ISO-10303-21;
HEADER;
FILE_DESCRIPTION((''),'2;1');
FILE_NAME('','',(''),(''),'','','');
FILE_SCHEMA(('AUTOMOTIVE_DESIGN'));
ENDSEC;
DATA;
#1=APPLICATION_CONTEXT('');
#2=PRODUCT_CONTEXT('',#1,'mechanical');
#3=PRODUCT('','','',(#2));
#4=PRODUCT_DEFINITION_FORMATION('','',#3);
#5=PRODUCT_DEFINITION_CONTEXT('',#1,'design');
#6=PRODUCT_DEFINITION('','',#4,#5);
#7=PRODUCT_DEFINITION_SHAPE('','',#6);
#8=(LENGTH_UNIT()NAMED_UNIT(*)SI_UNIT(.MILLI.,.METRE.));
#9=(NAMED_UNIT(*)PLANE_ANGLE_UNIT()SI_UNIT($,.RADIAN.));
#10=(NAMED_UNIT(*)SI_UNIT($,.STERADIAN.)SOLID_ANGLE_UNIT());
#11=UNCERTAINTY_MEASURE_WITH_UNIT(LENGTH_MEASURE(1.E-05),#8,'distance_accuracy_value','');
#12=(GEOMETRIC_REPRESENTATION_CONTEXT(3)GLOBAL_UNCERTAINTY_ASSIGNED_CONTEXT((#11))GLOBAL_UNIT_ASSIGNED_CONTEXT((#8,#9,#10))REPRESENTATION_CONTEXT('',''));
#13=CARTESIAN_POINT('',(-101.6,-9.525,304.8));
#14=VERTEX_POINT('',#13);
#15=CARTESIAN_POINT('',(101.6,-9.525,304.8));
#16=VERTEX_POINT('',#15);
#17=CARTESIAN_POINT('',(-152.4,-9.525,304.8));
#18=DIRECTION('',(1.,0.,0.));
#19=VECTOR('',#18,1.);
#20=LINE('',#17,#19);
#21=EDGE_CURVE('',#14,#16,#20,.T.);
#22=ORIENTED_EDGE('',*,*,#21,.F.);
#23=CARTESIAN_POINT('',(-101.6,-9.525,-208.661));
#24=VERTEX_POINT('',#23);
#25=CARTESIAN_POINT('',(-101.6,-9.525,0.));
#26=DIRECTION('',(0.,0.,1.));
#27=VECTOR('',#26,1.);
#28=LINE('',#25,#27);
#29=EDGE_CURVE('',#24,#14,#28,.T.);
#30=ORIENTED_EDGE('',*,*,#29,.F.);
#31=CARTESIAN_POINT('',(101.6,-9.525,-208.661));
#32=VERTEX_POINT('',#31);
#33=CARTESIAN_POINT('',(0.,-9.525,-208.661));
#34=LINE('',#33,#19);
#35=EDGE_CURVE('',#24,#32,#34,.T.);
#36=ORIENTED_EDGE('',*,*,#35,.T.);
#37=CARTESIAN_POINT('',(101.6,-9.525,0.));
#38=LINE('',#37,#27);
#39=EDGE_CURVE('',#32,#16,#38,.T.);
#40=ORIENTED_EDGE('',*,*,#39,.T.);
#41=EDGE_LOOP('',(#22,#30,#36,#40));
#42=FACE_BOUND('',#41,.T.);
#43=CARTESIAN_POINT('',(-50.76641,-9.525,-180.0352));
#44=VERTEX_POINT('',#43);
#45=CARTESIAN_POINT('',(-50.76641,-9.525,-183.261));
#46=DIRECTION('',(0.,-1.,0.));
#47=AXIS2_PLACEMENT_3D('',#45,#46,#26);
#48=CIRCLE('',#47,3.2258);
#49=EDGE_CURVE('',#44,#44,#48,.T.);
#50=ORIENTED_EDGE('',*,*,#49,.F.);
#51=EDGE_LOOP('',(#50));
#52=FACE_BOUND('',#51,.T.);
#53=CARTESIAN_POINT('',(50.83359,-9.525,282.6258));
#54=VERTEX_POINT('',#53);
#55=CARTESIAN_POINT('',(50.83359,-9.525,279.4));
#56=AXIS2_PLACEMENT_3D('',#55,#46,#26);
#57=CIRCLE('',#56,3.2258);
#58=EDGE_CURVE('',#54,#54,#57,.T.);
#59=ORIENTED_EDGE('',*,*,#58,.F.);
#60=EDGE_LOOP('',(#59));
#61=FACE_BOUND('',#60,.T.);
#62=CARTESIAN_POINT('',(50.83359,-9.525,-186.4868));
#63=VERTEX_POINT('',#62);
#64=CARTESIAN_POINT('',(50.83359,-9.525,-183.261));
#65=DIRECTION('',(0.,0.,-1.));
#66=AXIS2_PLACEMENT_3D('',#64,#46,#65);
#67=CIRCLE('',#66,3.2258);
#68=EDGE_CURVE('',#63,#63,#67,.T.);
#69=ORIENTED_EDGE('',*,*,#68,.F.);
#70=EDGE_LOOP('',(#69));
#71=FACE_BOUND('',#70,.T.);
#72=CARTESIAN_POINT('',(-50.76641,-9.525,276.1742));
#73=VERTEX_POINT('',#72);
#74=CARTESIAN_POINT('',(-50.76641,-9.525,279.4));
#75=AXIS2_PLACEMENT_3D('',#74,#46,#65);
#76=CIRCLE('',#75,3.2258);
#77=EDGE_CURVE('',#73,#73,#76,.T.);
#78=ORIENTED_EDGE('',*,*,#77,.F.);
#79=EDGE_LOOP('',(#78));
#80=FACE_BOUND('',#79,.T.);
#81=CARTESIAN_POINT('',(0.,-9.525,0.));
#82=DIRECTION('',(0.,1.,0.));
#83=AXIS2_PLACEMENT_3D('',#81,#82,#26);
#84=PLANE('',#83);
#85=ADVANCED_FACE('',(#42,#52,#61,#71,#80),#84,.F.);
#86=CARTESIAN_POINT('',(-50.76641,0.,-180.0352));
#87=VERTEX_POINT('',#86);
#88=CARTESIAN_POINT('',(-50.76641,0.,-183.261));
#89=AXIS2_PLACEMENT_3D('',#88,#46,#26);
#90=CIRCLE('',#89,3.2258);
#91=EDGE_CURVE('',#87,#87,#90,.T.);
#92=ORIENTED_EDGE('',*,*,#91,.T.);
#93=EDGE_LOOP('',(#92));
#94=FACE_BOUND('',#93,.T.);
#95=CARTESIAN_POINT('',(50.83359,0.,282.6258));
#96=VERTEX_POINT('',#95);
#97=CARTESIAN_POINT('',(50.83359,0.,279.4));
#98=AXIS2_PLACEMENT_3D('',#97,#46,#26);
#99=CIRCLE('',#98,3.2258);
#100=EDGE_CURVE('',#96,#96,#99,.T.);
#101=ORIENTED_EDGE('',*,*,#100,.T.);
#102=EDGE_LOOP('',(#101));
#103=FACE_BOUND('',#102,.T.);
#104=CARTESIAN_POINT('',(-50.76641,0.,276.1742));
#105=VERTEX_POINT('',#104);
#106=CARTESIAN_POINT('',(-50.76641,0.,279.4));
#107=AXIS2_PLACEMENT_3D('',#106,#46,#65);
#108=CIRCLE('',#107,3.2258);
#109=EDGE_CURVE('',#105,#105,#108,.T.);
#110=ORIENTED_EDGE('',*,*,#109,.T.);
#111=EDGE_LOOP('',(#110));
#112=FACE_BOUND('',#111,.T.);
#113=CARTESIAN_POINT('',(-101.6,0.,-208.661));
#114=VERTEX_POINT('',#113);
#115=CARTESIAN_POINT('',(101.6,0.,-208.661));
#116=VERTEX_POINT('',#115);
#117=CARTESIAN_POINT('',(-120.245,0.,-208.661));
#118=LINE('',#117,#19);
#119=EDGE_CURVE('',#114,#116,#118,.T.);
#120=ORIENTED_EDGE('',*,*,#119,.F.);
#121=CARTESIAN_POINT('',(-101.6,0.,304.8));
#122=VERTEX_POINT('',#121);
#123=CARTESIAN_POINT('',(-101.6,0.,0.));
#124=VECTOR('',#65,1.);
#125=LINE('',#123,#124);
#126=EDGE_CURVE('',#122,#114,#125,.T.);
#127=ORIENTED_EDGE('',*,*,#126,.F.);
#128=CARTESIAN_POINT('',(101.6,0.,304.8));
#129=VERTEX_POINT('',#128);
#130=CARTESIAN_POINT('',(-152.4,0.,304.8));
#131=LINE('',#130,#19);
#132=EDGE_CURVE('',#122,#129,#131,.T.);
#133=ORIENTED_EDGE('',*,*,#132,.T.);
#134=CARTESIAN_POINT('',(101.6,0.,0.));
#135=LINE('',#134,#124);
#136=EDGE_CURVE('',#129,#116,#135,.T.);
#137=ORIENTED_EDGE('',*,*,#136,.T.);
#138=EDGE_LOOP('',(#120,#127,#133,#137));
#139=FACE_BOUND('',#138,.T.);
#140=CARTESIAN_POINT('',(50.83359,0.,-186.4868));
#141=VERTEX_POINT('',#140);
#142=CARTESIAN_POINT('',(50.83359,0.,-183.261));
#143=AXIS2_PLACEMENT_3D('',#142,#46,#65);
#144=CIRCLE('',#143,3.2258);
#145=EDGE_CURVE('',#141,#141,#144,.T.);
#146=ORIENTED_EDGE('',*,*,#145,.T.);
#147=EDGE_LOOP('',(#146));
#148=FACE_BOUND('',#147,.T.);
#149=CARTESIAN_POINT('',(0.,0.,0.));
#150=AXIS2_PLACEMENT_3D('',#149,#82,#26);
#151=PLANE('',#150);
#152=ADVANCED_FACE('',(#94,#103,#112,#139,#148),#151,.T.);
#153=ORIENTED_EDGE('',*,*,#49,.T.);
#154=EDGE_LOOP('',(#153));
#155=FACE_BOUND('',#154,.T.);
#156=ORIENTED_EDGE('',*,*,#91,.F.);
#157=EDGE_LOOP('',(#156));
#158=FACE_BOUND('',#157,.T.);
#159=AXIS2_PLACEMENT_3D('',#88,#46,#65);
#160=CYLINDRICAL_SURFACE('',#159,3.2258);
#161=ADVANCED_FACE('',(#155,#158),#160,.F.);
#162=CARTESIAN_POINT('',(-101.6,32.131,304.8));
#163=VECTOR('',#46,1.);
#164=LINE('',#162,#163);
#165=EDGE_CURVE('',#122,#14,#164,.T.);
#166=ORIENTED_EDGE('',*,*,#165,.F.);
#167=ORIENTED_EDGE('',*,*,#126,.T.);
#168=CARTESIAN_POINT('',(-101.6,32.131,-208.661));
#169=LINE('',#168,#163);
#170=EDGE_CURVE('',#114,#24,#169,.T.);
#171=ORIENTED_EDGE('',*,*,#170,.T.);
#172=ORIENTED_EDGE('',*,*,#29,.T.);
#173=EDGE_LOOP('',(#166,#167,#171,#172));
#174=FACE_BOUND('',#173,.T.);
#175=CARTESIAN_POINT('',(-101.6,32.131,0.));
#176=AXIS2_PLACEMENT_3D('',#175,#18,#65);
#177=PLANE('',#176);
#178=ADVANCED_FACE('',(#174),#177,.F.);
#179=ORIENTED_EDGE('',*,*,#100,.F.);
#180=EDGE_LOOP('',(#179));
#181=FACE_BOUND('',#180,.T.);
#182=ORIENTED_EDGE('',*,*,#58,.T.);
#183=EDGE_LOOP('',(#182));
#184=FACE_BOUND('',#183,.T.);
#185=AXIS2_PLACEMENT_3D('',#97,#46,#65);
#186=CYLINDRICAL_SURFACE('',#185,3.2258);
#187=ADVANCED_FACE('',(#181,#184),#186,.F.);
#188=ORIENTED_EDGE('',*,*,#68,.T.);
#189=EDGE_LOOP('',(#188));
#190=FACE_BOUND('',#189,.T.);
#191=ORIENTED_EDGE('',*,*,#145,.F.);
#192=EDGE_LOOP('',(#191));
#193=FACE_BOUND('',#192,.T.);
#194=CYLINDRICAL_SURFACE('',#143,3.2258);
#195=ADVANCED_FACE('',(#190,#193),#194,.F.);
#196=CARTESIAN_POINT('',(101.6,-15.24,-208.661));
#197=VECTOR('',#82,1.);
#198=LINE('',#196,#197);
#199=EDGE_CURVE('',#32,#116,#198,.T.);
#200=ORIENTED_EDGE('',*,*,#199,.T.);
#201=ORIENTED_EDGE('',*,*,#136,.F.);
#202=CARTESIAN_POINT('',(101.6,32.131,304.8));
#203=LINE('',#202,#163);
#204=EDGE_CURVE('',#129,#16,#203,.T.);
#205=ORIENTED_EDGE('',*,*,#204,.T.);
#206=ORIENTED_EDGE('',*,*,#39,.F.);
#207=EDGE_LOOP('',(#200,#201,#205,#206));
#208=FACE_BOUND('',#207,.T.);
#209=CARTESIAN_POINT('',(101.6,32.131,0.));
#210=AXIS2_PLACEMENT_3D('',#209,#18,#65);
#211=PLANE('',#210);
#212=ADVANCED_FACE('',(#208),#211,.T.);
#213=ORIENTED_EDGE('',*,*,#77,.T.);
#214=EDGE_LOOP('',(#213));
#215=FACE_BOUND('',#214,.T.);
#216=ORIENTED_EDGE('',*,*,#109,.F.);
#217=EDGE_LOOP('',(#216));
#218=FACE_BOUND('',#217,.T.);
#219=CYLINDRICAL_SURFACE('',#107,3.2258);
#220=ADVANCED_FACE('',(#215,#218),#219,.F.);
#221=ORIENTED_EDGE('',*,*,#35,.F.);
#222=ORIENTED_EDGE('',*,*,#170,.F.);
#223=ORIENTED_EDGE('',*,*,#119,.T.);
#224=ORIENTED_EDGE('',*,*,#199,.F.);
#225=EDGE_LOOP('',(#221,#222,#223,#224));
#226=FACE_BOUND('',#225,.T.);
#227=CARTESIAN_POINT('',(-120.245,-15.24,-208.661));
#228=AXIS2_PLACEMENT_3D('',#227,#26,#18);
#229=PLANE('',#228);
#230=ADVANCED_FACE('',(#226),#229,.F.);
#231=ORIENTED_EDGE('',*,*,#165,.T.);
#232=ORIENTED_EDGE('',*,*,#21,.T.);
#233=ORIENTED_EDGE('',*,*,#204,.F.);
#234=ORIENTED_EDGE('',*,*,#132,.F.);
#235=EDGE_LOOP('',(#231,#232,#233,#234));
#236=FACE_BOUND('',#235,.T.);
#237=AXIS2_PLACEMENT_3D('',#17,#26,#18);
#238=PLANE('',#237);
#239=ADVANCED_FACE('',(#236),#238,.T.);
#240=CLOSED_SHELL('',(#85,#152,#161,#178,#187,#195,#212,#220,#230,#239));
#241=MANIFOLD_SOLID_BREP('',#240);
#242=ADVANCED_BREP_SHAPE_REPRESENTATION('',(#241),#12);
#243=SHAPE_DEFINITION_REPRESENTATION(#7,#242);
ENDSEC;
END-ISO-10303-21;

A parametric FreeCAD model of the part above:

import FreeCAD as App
import Part
import Sketcher
from FreeCAD import Vector
Q = App.Units.Quantity


def add_polygon(sketch, points):
    """Adds a closed chain of lines whose ends are joined by coincident constraints."""
    first, n = sketch.GeometryCount, len(points)
    for a, b in zip(points, points[1:] + points[:1]):
        sketch.addGeometry(Part.LineSegment(App.Vector(*a, 0), App.Vector(*b, 0)), False)
    for i in range(n):
        sketch.addConstraint(Sketcher.Constraint("Coincident", first + i, 2, first + (i + 1) % n, 1))

doc = App.newDocument("Part")
body = doc.addObject("PartDesign::Body", "Body")

sketch1 = doc.addObject("Sketcher::SketchObject", "Sketch")
body.addObject(sketch1)
sketch1.AttachmentSupport = (doc.XZ_Plane, [""])
sketch1.MapMode = "FlatFace"
add_polygon(sketch1, [(-152, -305), (-152, 305), (152, 305), (152, -305)])
sketch1.addConstraint([
    Sketcher.Constraint("Vertical", 0),
    Sketcher.Constraint("Horizontal", 1),
    Sketcher.Constraint("Vertical", 2),
    Sketcher.Constraint("Horizontal", 3),
    Sketcher.Constraint("Symmetric", 0, 2, 2, 2, -1, 1),
    Sketcher.Constraint("DistanceX", 1, 1, 1, 2, Q("12 in")),
    Sketcher.Constraint("DistanceY", 0, 1, 0, 2, Q("24 in")),
])
pad1 = doc.addObject("PartDesign::Pad", "Pad")
body.addObject(pad1)
pad1.Profile = sketch1
pad1.Length = Q("0.375 in")

sketch2 = doc.addObject("Sketcher::SketchObject", "Sketch001")
body.addObject(sketch2)
sketch2.AttachmentSupport = (doc.XZ_Plane, [""])
sketch2.MapMode = "FlatFace"
add_polygon(sketch2, [(152, -305), (-152, -305), (-152, 305), (-120, 305), (-120, -209), (120, -209), (120, 305), (152, 305)])
sketch2.addConstraint([
    Sketcher.Constraint("Horizontal", 0),
    Sketcher.Constraint("Vertical", 1),
    Sketcher.Constraint("Horizontal", 2),
    Sketcher.Constraint("Vertical", 3),
    Sketcher.Constraint("Horizontal", 4),
    Sketcher.Constraint("Vertical", 5),
    Sketcher.Constraint("Horizontal", 6),
    Sketcher.Constraint("Vertical", 7),
    Sketcher.Constraint("Symmetric", 0, 2, 6, 2, -1, 1),
    Sketcher.Constraint("Symmetric", 2, 2, 5, 2, -2),
    Sketcher.Constraint("DistanceX", 0, 2, 0, 1, Q("12 in")),
    Sketcher.Constraint("DistanceY", 1, 1, 1, 2, Q("24 in")),
    Sketcher.Constraint("DistanceY", 3, 2, 3, 1, Q("20.215 in")),
    Sketcher.Constraint("DistanceX", 2, 1, 2, 2, 32.155),
])
pocket1 = doc.addObject("PartDesign::Pocket", "Pocket")
body.addObject(pocket1)
pocket1.Profile = sketch2
pocket1.Length = Q("0.6 in")
pocket1.Reversed = True

sketch3 = doc.addObject("Sketcher::SketchObject", "Sketch002")
body.addObject(sketch3)
sketch3.AttachmentSupport = (doc.XZ_Plane, [""])
sketch3.MapMode = "FlatFace"
sketch3.AttachmentOffset = App.Placement(Vector(0, 0, 0.375 * 25.4), App.Rotation())
sketch3.addGeometry([
    Part.Circle(Vector(50.8, -183.3, 0), Vector(0, 0, 1), 3.2),
    Part.Circle(Vector(-50.8, -183.3, 0), Vector(0, 0, 1), 3.2),
    Part.Circle(Vector(-50.8, 279.4, 0), Vector(0, 0, 1), 3.2),
    Part.Circle(Vector(50.8, 279.4, 0), Vector(0, 0, 1), 3.2),
], False)
sketch3.addConstraint([
    Sketcher.Constraint("Equal", 0, 1),
    Sketcher.Constraint("Equal", 1, 2),
    Sketcher.Constraint("Equal", 2, 3),
    Sketcher.Constraint("Horizontal", 0, 3, 1, 3),
    Sketcher.Constraint("Horizontal", 2, 3, 3, 3),
    Sketcher.Constraint("Vertical", 1, 3, 2, 3),
    Sketcher.Constraint("Vertical", 0, 3, 3, 3),
    Sketcher.Constraint("Diameter", 0, Q("0.254 in")),
    Sketcher.Constraint("DistanceY", -1, 1, 2, 3, Q("11 in")),
    Sketcher.Constraint("DistanceX", 1, 3, 0, 3, Q("4 in")),
    Sketcher.Constraint("DistanceY", 0, 3, -1, 1, Q("7.215 in")),
    Sketcher.Constraint("DistanceX", -1, 1, 0, 3, 50.83359),
])
pocket2 = doc.addObject("PartDesign::Pocket", "Pocket001")
body.addObject(pocket2)
pocket2.Profile = sketch3
pocket2.Type = "ThroughAll"

sketch4 = doc.addObject("Sketcher::SketchObject", "Sketch003")
body.addObject(sketch4)
sketch4.AttachmentSupport = (doc.XZ_Plane, [""])
sketch4.MapMode = "FlatFace"
sketch4.AttachmentOffset = App.Placement(Vector(0, 0, 0.375 * 25.4), App.Rotation())
add_polygon(sketch4, [(102, 305), (102, -209), (120, -209), (120, 305)])
add_polygon(sketch4, [(-120, 305), (-120, -209), (-102, -209), (-102, 305)])
sketch4.addConstraint([
    Sketcher.Constraint("Vertical", 0),
    Sketcher.Constraint("Horizontal", 1),
    Sketcher.Constraint("Vertical", 2),
    Sketcher.Constraint("Horizontal", 3),
    Sketcher.Constraint("Vertical", 4),
    Sketcher.Constraint("Horizontal", 5),
    Sketcher.Constraint("Vertical", 6),
    Sketcher.Constraint("Horizontal", 7),
    Sketcher.Constraint("Symmetric", 1, 2, 4, 2, -2),
    Sketcher.Constraint("Symmetric", 3, 2, 6, 2, -2),
    Sketcher.Constraint("DistanceX", -1, 1, 0, 2, Q("4 in")),
    Sketcher.Constraint("DistanceY", -1, 1, 2, 2, Q("12 in")),
    Sketcher.Constraint("DistanceY", 0, 2, 0, 1, Q("20.215 in")),
    Sketcher.Constraint("DistanceX", 1, 1, 1, 2, 18.645),
])
pocket3 = doc.addObject("PartDesign::Pocket", "Pocket002")
body.addObject(pocket3)
pocket3.Profile = sketch4
pocket3.Length = Q("1.64 in")

doc.recompute()
